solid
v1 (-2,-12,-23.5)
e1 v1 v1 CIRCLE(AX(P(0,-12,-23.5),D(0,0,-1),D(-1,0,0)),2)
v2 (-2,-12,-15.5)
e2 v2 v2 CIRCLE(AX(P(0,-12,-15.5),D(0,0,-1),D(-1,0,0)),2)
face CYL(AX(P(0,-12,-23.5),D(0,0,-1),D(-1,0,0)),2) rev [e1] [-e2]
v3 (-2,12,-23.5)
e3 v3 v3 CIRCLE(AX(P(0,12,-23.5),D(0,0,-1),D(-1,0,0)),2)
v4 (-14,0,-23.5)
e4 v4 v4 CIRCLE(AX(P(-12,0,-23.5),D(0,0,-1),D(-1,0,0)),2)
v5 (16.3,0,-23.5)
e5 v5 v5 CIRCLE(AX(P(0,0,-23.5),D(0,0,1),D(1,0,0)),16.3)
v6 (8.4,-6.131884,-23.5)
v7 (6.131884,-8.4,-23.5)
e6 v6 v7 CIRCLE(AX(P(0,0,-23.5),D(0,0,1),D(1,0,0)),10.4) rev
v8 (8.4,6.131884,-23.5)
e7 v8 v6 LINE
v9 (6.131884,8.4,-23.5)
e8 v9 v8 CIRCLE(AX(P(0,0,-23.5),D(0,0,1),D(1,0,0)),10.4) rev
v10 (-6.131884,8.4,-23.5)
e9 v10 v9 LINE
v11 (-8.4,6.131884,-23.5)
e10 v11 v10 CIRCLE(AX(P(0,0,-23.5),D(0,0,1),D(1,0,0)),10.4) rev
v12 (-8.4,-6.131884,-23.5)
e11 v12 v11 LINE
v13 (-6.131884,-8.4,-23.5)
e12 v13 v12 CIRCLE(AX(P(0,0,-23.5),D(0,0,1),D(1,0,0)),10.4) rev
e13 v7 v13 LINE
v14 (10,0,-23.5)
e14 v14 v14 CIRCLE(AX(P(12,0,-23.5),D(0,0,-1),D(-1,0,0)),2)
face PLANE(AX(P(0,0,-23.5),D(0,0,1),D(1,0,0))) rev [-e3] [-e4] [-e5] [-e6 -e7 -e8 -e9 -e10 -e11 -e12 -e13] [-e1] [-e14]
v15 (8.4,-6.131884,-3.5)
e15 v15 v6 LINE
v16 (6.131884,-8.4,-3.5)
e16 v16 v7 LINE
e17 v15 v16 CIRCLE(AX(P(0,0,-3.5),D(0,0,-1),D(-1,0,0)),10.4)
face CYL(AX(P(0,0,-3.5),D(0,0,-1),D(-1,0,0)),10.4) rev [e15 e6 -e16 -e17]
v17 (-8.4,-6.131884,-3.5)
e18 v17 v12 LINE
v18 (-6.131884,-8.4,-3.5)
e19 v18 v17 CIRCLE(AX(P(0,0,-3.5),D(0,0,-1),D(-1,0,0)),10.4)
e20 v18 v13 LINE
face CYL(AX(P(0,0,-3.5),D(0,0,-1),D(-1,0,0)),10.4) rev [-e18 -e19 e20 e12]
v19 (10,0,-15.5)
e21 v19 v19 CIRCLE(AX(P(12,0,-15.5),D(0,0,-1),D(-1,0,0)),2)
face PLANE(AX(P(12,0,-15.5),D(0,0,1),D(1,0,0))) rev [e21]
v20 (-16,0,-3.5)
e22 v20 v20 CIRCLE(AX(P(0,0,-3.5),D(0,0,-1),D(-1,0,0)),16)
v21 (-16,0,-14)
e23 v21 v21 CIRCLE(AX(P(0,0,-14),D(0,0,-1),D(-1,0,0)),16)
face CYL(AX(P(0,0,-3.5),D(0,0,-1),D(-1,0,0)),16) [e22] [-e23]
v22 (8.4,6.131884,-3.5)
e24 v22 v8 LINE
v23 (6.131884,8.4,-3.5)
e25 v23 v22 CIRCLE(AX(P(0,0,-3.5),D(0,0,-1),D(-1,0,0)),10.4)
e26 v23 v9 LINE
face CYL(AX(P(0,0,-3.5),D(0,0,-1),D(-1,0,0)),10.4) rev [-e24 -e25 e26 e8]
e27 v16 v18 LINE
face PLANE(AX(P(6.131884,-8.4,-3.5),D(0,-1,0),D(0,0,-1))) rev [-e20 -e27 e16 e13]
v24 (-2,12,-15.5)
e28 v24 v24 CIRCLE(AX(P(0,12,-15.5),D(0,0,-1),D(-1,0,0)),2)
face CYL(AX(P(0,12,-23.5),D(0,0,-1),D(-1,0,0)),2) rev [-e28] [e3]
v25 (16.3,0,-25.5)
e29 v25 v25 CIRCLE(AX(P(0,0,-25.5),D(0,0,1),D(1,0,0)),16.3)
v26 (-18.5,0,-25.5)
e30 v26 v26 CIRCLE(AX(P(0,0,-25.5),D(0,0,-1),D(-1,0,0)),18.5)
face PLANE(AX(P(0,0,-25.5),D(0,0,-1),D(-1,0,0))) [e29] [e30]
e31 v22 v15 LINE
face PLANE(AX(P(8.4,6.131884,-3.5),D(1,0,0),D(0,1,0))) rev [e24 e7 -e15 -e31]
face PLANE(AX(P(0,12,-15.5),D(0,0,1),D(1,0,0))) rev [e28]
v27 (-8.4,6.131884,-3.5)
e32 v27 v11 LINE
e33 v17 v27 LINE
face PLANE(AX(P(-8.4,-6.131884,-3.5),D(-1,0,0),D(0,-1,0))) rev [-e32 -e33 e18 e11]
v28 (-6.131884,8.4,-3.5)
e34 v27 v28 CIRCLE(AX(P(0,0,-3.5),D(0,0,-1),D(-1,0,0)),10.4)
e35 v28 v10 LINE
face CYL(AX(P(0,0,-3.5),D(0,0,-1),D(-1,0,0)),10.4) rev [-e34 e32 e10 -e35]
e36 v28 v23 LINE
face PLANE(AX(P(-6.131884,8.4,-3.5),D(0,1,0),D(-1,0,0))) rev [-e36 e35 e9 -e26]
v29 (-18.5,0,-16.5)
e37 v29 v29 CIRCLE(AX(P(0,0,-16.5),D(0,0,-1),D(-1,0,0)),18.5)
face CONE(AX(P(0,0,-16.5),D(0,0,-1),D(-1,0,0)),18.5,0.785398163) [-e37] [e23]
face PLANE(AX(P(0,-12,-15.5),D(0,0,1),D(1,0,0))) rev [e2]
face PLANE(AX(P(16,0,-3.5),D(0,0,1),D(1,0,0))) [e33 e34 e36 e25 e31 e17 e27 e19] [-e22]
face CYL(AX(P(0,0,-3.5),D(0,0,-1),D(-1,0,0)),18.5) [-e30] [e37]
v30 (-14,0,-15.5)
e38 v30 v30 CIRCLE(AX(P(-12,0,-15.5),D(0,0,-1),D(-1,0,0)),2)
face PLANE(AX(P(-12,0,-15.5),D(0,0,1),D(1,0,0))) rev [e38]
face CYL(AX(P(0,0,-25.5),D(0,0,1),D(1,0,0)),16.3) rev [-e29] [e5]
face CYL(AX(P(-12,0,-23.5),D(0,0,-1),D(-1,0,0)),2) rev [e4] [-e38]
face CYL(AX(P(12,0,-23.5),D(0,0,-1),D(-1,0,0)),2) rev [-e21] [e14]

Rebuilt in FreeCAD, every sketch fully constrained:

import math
import FreeCAD as App
import Part
import Sketcher
Q = App.Units.Quantity


def add_polygon(sketch, points):
    """Adds a closed chain of lines whose ends are joined by coincident constraints."""
    first, n = sketch.GeometryCount, len(points)
    for a, b in zip(points, points[1:] + points[:1]):
        sketch.addGeometry(Part.LineSegment(App.Vector(*a, 0), App.Vector(*b, 0)), False)
    for i in range(n):
        sketch.addConstraint(Sketcher.Constraint("Coincident", first + i, 2, first + (i + 1) % n, 1))

doc = App.newDocument("Part")
body = doc.addObject("PartDesign::Body", "Body")

# Sketch on XZ plane
sketch1 = body.newObject("Sketcher::SketchObject", "Sketch")
sketch1.AttachmentSupport = (doc.getObject("XZ_Plane"), [""])
sketch1.MapMode = "FlatFace"
add_polygon(sketch1, [(16, -3.5), (0, -3.5), (0, -25.5), (18.5, -25.5), (18.5, -16.5), (16, -14)])  # lines 0-5
sketch1.addConstraint(Sketcher.Constraint("Horizontal", 0))
sketch1.addConstraint(Sketcher.Constraint("Vertical", 1))
sketch1.addConstraint(Sketcher.Constraint("Horizontal", 2))
sketch1.addConstraint(Sketcher.Constraint("Vertical", 3))
sketch1.addConstraint(Sketcher.Constraint("Vertical", 5))
sketch1.addConstraint(Sketcher.Constraint("PointOnObject", 0, 2, -2))
sketch1.addConstraint(Sketcher.Constraint("DistanceX", 0, 2, 0, 1, 16.0))
sketch1.addConstraint(Sketcher.Constraint("DistanceY", 1, 2, 1, 1, 22.0))
sketch1.addConstraint(Sketcher.Constraint("DistanceY", 3, 1, 3, 2, 9.0))
sketch1.addConstraint(Sketcher.Constraint("Angle", 4, Q("135 deg")))
sketch1.addConstraint(Sketcher.Constraint("DistanceX", 2, 1, 2, 2, 18.5))
sketch1.addConstraint(Sketcher.Constraint("DistanceY", 4, 2, -1, 1, 14.0))
revolution = body.newObject("PartDesign::Revolution", "Revolution")
revolution.Profile = sketch1
revolution.ReferenceAxis = (sketch1, ["V_Axis"])
revolution.Angle = 360

# Sketch on XY plane
sketch2 = body.newObject("Sketcher::SketchObject", "Sketch001")
sketch2.AttachmentSupport = (doc.getObject("XY_Plane"), [""])
sketch2.MapMode = "FlatFace"
sketch2.AttachmentOffset = App.Placement(App.Vector(0, 0, -25.5), App.Rotation())
sketch2.addGeometry(Part.LineSegment(App.Vector(-8.4, -6.1, 0), App.Vector(-8.4, 6.1, 0)), False)
sketch2.addGeometry(Part.ArcOfCircle(Part.Circle(App.Vector(0, 0, 0), App.Vector(0, 0, 1), 10.4), math.radians(126.13), math.radians(143.87)), False)
sketch2.addGeometry(Part.LineSegment(App.Vector(-6.1, 8.4, 0), App.Vector(6.1, 8.4, 0)), False)
sketch2.addGeometry(Part.ArcOfCircle(Part.Circle(App.Vector(0, 0, 0), App.Vector(0, 0, 1), 10.4), math.radians(36.13), math.radians(53.87)), False)
sketch2.addGeometry(Part.LineSegment(App.Vector(8.4, 6.1, 0), App.Vector(8.4, -6.1, 0)), False)
sketch2.addGeometry(Part.ArcOfCircle(Part.Circle(App.Vector(0, 0, 0), App.Vector(0, 0, 1), 10.4), math.radians(-53.87), math.radians(-36.13)), False)
sketch2.addGeometry(Part.LineSegment(App.Vector(6.1, -8.4, 0), App.Vector(-6.1, -8.4, 0)), False)
sketch2.addGeometry(Part.ArcOfCircle(Part.Circle(App.Vector(0, 0, 0), App.Vector(0, 0, 1), 10.4), math.radians(-143.87), math.radians(-126.13)), False)
sketch2.addConstraint(Sketcher.Constraint("Coincident", 0, 2, 1, 2))
sketch2.addConstraint(Sketcher.Constraint("Coincident", 1, 1, 2, 1))
sketch2.addConstraint(Sketcher.Constraint("Coincident", 2, 2, 3, 2))
sketch2.addConstraint(Sketcher.Constraint("Coincident", 3, 1, 4, 1))
sketch2.addConstraint(Sketcher.Constraint("Coincident", 4, 2, 5, 2))
sketch2.addConstraint(Sketcher.Constraint("Coincident", 5, 1, 6, 1))
sketch2.addConstraint(Sketcher.Constraint("Coincident", 6, 2, 7, 2))
sketch2.addConstraint(Sketcher.Constraint("Coincident", 7, 1, 0, 1))
sketch2.addConstraint(Sketcher.Constraint("Vertical", 0))
sketch2.addConstraint(Sketcher.Constraint("Horizontal", 2))
sketch2.addConstraint(Sketcher.Constraint("Vertical", 4))
sketch2.addConstraint(Sketcher.Constraint("Horizontal", 6))
sketch2.addConstraint(Sketcher.Constraint("Coincident", 1, 3, -1, 1))
sketch2.addConstraint(Sketcher.Constraint("Coincident", 3, 3, -1, 1))
sketch2.addConstraint(Sketcher.Constraint("Coincident", 5, 3, -1, 1))
sketch2.addConstraint(Sketcher.Constraint("Coincident", 7, 3, -1, 1))
sketch2.addConstraint(Sketcher.Constraint("Equal", 1, 3))
sketch2.addConstraint(Sketcher.Constraint("Equal", 3, 5))
sketch2.addConstraint(Sketcher.Constraint("Equal", 5, 7))
sketch2.addConstraint(Sketcher.Constraint("Horizontal", 0, 2, 3, 1))
sketch2.addConstraint(Sketcher.Constraint("Vertical", 2, 2, 5, 1))
sketch2.addConstraint(Sketcher.Constraint("Equal", 6, 0))
sketch2.addConstraint(Sketcher.Constraint("Radius", 1, 10.4))
sketch2.addConstraint(Sketcher.Constraint("DistanceX", 0, 2, -1, 1, 8.4))
pocket1 = body.newObject("PartDesign::Pocket", "Pocket")
pocket1.Profile = sketch2
pocket1.Type = "ThroughAll"
pocket1.Reversed = True

# Sketch on XZ plane
sketch3 = body.newObject("Sketcher::SketchObject", "Sketch002")
sketch3.AttachmentSupport = (doc.getObject("XZ_Plane"), [""])
sketch3.MapMode = "FlatFace"
add_polygon(sketch3, [(0, -25.5), (0, -23.5), (16.3, -23.5), (16.3, -25.5)])  # lines 0-3
sketch3.addConstraint(Sketcher.Constraint("Vertical", 0))
sketch3.addConstraint(Sketcher.Constraint("Horizontal", 1))
sketch3.addConstraint(Sketcher.Constraint("Vertical", 2))
sketch3.addConstraint(Sketcher.Constraint("Horizontal", 3))
sketch3.addConstraint(Sketcher.Constraint("PointOnObject", 0, 2, -2))
sketch3.addConstraint(Sketcher.Constraint("DistanceY", 0, 1, 0, 2, 2.0))
sketch3.addConstraint(Sketcher.Constraint("DistanceX", 1, 1, 1, 2, 16.3))
sketch3.addConstraint(Sketcher.Constraint("DistanceY", 0, 2, -1, 1, 23.5))
groove = body.newObject("PartDesign::Groove", "Groove")
groove.Profile = sketch3
groove.ReferenceAxis = (sketch3, ["V_Axis"])
groove.Angle = 360

# Sketch on XY plane
sketch4 = body.newObject("Sketcher::SketchObject", "Sketch003")
sketch4.AttachmentSupport = (doc.getObject("XY_Plane"), [""])
sketch4.MapMode = "FlatFace"
sketch4.AttachmentOffset = App.Placement(App.Vector(0, 0, -23.5), App.Rotation())
sketch4.addGeometry(Part.Circle(App.Vector(12, 0, 0), App.Vector(0, 0, 1), 2), False)
sketch4.addGeometry(Part.Circle(App.Vector(0, -12, 0), App.Vector(0, 0, 1), 2), False)
sketch4.addGeometry(Part.Circle(App.Vector(-12, 0, 0), App.Vector(0, 0, 1), 2), False)
sketch4.addGeometry(Part.Circle(App.Vector(0, 12, 0), App.Vector(0, 0, 1), 2), False)
sketch4.addConstraint(Sketcher.Constraint("Equal", 0, 1))
sketch4.addConstraint(Sketcher.Constraint("Equal", 1, 2))
sketch4.addConstraint(Sketcher.Constraint("Equal", 2, 3))
sketch4.addConstraint(Sketcher.Constraint("Symmetric", 0, 3, 2, 3, -1, 1))
sketch4.addConstraint(Sketcher.Constraint("Symmetric", 1, 3, 3, 3, -1, 1))
sketch4.addConstraint(Sketcher.Constraint("PointOnObject", 0, 3, -1))
sketch4.addConstraint(Sketcher.Constraint("PointOnObject", 1, 3, -2))
sketch4.addConstraint(Sketcher.Constraint("Diameter", 0, 4.0))
sketch4.addConstraint(Sketcher.Constraint("DistanceX", -1, 1, 0, 3, 12.0))
sketch4.addConstraint(Sketcher.Constraint("DistanceY", 1, 3, -1, 1, 12.0))
doc.recompute()
hole = body.newObject("PartDesign::Hole", "Hole")
hole.Profile = sketch4
hole.ThreadType = "None"
hole.Diameter = 4
hole.DepthType = "Dimension"
hole.Depth = 8
hole.DrillPoint = "Flat"
hole.Reversed = True

doc.recompute()
